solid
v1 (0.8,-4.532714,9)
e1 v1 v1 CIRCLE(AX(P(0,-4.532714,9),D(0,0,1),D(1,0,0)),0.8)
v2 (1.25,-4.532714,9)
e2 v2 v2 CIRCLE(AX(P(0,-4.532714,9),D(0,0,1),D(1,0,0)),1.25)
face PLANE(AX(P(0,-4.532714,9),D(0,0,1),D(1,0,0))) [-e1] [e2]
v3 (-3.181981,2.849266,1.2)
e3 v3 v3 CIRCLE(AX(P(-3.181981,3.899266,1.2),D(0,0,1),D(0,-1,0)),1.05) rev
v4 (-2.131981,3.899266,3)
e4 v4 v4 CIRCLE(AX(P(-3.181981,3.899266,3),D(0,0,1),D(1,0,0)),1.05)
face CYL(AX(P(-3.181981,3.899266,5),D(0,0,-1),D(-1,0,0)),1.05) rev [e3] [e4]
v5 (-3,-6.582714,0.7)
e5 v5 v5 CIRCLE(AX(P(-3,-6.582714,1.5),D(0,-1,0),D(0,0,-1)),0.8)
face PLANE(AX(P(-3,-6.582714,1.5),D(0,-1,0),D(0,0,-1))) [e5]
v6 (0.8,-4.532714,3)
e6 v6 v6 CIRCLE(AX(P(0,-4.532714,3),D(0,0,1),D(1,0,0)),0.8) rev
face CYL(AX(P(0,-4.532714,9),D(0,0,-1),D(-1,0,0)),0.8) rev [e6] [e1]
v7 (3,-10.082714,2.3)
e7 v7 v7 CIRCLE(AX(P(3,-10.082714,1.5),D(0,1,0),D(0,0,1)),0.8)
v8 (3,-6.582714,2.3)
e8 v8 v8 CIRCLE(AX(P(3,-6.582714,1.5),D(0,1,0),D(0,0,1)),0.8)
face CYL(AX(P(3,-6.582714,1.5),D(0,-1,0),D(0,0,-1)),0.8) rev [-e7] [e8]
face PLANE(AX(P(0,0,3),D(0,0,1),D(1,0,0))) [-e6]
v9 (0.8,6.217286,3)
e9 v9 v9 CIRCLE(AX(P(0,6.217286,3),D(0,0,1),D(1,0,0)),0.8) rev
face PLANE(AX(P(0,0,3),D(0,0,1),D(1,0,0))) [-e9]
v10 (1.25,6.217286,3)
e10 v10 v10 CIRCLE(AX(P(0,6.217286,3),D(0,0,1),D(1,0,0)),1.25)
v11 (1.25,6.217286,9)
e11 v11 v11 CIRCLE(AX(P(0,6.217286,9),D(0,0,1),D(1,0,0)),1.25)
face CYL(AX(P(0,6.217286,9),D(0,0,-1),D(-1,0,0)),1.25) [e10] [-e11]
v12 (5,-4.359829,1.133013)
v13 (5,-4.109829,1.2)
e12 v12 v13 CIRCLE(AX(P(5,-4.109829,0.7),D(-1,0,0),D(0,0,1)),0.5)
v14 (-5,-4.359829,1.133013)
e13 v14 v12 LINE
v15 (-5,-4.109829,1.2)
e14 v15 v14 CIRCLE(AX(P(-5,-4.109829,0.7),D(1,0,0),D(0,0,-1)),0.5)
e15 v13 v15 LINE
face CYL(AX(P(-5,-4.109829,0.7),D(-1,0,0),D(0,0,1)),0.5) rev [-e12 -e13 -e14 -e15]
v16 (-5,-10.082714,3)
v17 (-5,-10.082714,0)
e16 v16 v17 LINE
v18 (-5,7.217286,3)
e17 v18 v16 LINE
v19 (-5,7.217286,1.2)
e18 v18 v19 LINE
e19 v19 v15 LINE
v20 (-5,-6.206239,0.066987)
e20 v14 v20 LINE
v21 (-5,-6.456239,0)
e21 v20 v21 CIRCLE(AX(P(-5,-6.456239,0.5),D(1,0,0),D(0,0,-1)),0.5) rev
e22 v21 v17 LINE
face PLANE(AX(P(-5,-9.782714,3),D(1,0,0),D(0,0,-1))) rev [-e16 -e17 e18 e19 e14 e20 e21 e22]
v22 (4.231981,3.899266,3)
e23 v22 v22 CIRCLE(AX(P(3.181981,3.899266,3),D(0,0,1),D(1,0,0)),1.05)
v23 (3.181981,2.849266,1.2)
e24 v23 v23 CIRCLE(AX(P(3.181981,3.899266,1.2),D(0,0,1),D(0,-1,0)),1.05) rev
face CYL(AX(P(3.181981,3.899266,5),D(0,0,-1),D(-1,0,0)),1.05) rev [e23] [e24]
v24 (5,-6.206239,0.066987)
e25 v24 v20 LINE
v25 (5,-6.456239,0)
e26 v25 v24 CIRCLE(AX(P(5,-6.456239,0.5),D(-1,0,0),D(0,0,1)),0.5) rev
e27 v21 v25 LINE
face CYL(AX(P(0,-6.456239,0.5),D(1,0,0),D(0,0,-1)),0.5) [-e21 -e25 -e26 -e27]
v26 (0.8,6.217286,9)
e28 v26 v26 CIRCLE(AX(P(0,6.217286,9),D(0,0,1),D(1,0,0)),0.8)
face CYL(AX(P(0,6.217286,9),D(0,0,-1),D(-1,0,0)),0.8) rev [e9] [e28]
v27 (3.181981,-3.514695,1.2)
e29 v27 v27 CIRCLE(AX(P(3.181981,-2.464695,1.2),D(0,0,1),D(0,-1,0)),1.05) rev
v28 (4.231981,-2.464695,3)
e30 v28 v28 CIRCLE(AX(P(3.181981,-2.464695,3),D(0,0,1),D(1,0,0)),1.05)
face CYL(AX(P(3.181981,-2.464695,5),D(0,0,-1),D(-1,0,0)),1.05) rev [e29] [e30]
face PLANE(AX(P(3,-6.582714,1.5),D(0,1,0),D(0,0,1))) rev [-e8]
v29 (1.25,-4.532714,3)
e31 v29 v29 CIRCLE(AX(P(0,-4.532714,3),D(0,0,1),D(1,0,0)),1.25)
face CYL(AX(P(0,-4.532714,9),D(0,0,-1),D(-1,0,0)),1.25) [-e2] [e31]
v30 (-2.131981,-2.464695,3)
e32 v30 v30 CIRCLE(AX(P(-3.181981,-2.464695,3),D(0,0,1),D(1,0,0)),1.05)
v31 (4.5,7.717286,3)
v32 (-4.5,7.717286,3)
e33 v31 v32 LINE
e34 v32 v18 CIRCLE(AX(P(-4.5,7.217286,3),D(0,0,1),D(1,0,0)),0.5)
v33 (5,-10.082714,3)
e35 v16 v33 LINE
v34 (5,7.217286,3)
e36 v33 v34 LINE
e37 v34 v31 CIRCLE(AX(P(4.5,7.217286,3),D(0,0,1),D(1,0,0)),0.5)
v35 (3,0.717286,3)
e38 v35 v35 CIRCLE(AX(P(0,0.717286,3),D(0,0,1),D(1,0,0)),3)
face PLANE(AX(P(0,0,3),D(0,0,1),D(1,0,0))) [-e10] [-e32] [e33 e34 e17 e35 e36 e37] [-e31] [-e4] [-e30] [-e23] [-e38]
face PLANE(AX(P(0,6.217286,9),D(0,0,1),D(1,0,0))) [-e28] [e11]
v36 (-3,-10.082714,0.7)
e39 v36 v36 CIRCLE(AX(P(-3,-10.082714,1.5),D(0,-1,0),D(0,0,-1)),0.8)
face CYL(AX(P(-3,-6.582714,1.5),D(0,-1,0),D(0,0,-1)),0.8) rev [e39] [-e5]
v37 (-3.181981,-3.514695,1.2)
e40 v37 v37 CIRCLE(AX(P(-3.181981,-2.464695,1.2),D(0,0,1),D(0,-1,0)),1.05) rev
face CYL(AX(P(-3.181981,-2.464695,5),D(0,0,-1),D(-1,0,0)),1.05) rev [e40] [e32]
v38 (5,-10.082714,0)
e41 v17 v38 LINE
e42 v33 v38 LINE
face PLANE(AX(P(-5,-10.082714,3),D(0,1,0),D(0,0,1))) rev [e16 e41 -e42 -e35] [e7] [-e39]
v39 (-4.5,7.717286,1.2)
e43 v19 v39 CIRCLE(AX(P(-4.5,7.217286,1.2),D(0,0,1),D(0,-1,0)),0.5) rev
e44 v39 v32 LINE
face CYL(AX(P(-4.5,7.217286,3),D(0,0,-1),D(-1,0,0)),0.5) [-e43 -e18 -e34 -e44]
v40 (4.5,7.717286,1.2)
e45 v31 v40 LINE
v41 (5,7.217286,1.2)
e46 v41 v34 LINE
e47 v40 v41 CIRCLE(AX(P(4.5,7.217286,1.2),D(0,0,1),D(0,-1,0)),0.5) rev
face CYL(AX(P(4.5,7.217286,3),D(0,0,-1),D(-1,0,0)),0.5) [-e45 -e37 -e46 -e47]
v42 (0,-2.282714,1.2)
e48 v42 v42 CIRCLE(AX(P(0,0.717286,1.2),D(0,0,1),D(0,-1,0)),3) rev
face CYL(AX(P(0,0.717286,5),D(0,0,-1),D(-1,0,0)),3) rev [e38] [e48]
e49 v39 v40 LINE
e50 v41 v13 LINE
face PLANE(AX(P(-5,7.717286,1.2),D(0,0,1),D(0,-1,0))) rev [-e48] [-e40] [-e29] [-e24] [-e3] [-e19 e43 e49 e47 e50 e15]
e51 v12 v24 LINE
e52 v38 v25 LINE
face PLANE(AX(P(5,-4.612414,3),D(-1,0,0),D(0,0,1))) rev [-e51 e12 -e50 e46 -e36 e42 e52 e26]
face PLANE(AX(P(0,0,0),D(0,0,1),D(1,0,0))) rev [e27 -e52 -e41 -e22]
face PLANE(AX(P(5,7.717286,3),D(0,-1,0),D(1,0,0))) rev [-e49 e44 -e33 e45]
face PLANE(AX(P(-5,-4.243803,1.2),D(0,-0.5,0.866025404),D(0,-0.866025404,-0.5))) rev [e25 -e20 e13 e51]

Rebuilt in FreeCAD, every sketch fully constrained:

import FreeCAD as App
import Part
import Sketcher
Q = App.Units.Quantity


def edges_at(feature, points):
    """Names of the edges that pass closest to the given points."""
    edges = feature.Shape.Edges
    near = lambda p: min(range(len(edges)), key=lambda i: edges[i].distToShape(Part.Vertex(*p))[0])
    return sorted({f"Edge{near(p) + 1}" for p in points})


def add_polygon(sketch, points):
    """Adds a closed chain of lines whose ends are joined by coincident constraints."""
    first, n = sketch.GeometryCount, len(points)
    for a, b in zip(points, points[1:] + points[:1]):
        sketch.addGeometry(Part.LineSegment(App.Vector(*a, 0), App.Vector(*b, 0)), False)
    for i in range(n):
        sketch.addConstraint(Sketcher.Constraint("Coincident", first + i, 2, first + (i + 1) % n, 1))

doc = App.newDocument("Part")
body = doc.addObject("PartDesign::Body", "Body")

# Sketch on XY plane
sketch1 = body.newObject("Sketcher::SketchObject", "Sketch")
sketch1.AttachmentSupport = (doc.getObject("XY_Plane"), [""])
sketch1.MapMode = "FlatFace"
add_polygon(sketch1, [(-5, -10), (5, -10), (5, 8), (-5, 8)])  # lines 0-3
sketch1.addConstraint([
    Sketcher.Constraint("Horizontal", 0),
    Sketcher.Constraint("Vertical", 1),
    Sketcher.Constraint("Horizontal", 2),
    Sketcher.Constraint("Vertical", 3),
    Sketcher.Constraint("DistanceX", 0, 1, 0, 2, 10.0),
    Sketcher.Constraint("DistanceY", 1, 1, 1, 2, 17.8),
    Sketcher.Constraint("DistanceX", -1, 1, 0, 2, 5.0),
    Sketcher.Constraint("DistanceY", 0, 2, -1, 1, 10.082714),
])
pad1 = body.newObject("PartDesign::Pad", "Pad")
pad1.Profile = sketch1
pad1.Length = 3

# Sketch on XZ plane
sketch2 = body.newObject("Sketcher::SketchObject", "Sketch001")
sketch2.AttachmentSupport = (doc.getObject("XZ_Plane"), [""])
sketch2.MapMode = "FlatFace"
sketch2.AttachmentOffset = App.Placement(App.Vector(0, 0, 10.082714), App.Rotation())
sketch2.addGeometry([
    Part.Circle(App.Vector(-3, 1.5, 0), App.Vector(0, 0, 1), 0.8),
    Part.Circle(App.Vector(3, 1.5, 0), App.Vector(0, 0, 1), 0.8),
], False)
sketch2.addConstraint([
    Sketcher.Constraint("Equal", 0, 1),
    Sketcher.Constraint("Symmetric", 0, 3, 1, 3, -2),
    Sketcher.Constraint("Diameter", 0, 1.6),
    Sketcher.Constraint("DistanceX", 0, 3, -1, 1, 3.0),
    Sketcher.Constraint("DistanceY", -1, 1, 0, 3, 1.5),
])
pocket1 = body.newObject("PartDesign::Pocket", "Pocket")
pocket1.Profile = sketch2
pocket1.Length = 3.5

# Sketch on XY plane
sketch3 = body.newObject("Sketcher::SketchObject", "Sketch002")
sketch3.AttachmentSupport = (doc.getObject("XY_Plane"), [""])
sketch3.MapMode = "FlatFace"
sketch3.addGeometry([
    Part.Circle(App.Vector(0, 0.7, 0), App.Vector(0, 0, 1), 3),  # 0
    Part.Circle(App.Vector(3.2, 3.9, 0), App.Vector(0, 0, 1), 1.1),  # 1
    Part.Circle(App.Vector(-3.2, 3.9, 0), App.Vector(0, 0, 1), 1.1),  # 2
    Part.Circle(App.Vector(-3.2, -2.5, 0), App.Vector(0, 0, 1), 1.1),  # 3
    Part.Circle(App.Vector(3.2, -2.5, 0), App.Vector(0, 0, 1), 1.1),  # 4
], False)
sketch3.addConstraint([
    Sketcher.Constraint("Equal", 1, 2),
    Sketcher.Constraint("Equal", 2, 3),
    Sketcher.Constraint("Equal", 3, 4),
    Sketcher.Constraint("Symmetric", 1, 3, 2, 3, -2),
    Sketcher.Constraint("Symmetric", 3, 3, 4, 3, -2),
    Sketcher.Constraint("PointOnObject", 0, 3, -2),
    Sketcher.Constraint("Vertical", 2, 3, 3, 3),
    Sketcher.Constraint("Diameter", 0, 6.0),
    Sketcher.Constraint("Diameter", 1, 2.1),
    Sketcher.Constraint("DistanceX", -1, 1, 1, 3, 3.181981),
    Sketcher.Constraint("DistanceY", 0, 3, 1, 3, 3.181981),
    Sketcher.Constraint("DistanceY", 3, 3, 0, 3, 3.181981),
    Sketcher.Constraint("DistanceY", -1, 1, 0, 3, 0.717286),
])
pocket2 = body.newObject("PartDesign::Pocket", "Pocket001")
pocket2.Profile = sketch3
pocket2.Length = 5
pocket2.Reversed = True
doc.recompute()

fillet = body.newObject("PartDesign::Fillet", "Fillet")
fillet.Base = (pocket2, edges_at(pocket2, [(-5, 7.717, 1.5), (5, 7.717, 1.5)]))
fillet.Radius = 0.5

# Sketch on YZ plane
sketch4 = body.newObject("Sketcher::SketchObject", "Sketch003")
sketch4.AttachmentSupport = (doc.getObject("YZ_Plane"), [""])
sketch4.MapMode = "FlatFace"
sketch4.AttachmentOffset = App.Placement(App.Vector(0, 0, 5), App.Rotation())
add_polygon(sketch4, [(7.7, 1.2), (-4.2, 1.2), (-6.3, 0), (7.7, 0)])  # lines 0-3
sketch4.addConstraint([
    Sketcher.Constraint("Horizontal", 0),
    Sketcher.Constraint("Horizontal", 2),
    Sketcher.Constraint("Vertical", 3),
    Sketcher.Constraint("PointOnObject", 1, 2, -1),
    Sketcher.Constraint("Angle", 1, Q("-150 deg")),
    Sketcher.Constraint("DistanceY", 3, 1, 3, 2, 1.2),
    Sketcher.Constraint("DistanceX", 0, 2, 0, 1, 11.961089),
    Sketcher.Constraint("DistanceX", 0, 2, -1, 1, 4.243803),
])
pocket3 = body.newObject("PartDesign::Pocket", "Pocket002")
pocket3.Profile = sketch4
pocket3.Type = "ThroughAll"
doc.recompute()

fillet2 = body.newObject("PartDesign::Fillet", "Fillet001")
fillet2.Base = (pocket3, edges_at(pocket3, [(0, -4.244, 1.2), (0, -6.322, 0)]))
fillet2.Radius = 0.5

# Sketch on XY plane
sketch5 = body.newObject("Sketcher::SketchObject", "Sketch004")
sketch5.AttachmentSupport = (doc.getObject("XY_Plane"), [""])
sketch5.MapMode = "FlatFace"
sketch5.AttachmentOffset = App.Placement(App.Vector(0, 0, 3), App.Rotation())
sketch5.addGeometry([
    Part.Circle(App.Vector(0, 6.2, 0), App.Vector(0, 0, 1), 1.2),
    Part.Circle(App.Vector(0, 6.2, 0), App.Vector(0, 0, 1), 0.8),
    Part.Circle(App.Vector(0, -4.5, 0), App.Vector(0, 0, 1), 1.2),
    Part.Circle(App.Vector(0, -4.5, 0), App.Vector(0, 0, 1), 0.8),
], False)
sketch5.addConstraint([
    Sketcher.Constraint("Coincident", 1, 3, 0, 3),
    Sketcher.Constraint("Coincident", 3, 3, 2, 3),
    Sketcher.Constraint("Equal", 0, 2),
    Sketcher.Constraint("Equal", 1, 3),
    Sketcher.Constraint("PointOnObject", 0, 3, -2),
    Sketcher.Constraint("PointOnObject", 2, 3, -2),
    Sketcher.Constraint("Diameter", 0, 2.5),
    Sketcher.Constraint("Diameter", 1, 1.6),
    Sketcher.Constraint("DistanceY", 2, 3, 0, 3, 10.75),
    Sketcher.Constraint("DistanceY", -1, 1, 0, 3, 6.217286),
])
pad2 = body.newObject("PartDesign::Pad", "Pad001")
pad2.Profile = sketch5
pad2.Length = 6

doc.recompute()
